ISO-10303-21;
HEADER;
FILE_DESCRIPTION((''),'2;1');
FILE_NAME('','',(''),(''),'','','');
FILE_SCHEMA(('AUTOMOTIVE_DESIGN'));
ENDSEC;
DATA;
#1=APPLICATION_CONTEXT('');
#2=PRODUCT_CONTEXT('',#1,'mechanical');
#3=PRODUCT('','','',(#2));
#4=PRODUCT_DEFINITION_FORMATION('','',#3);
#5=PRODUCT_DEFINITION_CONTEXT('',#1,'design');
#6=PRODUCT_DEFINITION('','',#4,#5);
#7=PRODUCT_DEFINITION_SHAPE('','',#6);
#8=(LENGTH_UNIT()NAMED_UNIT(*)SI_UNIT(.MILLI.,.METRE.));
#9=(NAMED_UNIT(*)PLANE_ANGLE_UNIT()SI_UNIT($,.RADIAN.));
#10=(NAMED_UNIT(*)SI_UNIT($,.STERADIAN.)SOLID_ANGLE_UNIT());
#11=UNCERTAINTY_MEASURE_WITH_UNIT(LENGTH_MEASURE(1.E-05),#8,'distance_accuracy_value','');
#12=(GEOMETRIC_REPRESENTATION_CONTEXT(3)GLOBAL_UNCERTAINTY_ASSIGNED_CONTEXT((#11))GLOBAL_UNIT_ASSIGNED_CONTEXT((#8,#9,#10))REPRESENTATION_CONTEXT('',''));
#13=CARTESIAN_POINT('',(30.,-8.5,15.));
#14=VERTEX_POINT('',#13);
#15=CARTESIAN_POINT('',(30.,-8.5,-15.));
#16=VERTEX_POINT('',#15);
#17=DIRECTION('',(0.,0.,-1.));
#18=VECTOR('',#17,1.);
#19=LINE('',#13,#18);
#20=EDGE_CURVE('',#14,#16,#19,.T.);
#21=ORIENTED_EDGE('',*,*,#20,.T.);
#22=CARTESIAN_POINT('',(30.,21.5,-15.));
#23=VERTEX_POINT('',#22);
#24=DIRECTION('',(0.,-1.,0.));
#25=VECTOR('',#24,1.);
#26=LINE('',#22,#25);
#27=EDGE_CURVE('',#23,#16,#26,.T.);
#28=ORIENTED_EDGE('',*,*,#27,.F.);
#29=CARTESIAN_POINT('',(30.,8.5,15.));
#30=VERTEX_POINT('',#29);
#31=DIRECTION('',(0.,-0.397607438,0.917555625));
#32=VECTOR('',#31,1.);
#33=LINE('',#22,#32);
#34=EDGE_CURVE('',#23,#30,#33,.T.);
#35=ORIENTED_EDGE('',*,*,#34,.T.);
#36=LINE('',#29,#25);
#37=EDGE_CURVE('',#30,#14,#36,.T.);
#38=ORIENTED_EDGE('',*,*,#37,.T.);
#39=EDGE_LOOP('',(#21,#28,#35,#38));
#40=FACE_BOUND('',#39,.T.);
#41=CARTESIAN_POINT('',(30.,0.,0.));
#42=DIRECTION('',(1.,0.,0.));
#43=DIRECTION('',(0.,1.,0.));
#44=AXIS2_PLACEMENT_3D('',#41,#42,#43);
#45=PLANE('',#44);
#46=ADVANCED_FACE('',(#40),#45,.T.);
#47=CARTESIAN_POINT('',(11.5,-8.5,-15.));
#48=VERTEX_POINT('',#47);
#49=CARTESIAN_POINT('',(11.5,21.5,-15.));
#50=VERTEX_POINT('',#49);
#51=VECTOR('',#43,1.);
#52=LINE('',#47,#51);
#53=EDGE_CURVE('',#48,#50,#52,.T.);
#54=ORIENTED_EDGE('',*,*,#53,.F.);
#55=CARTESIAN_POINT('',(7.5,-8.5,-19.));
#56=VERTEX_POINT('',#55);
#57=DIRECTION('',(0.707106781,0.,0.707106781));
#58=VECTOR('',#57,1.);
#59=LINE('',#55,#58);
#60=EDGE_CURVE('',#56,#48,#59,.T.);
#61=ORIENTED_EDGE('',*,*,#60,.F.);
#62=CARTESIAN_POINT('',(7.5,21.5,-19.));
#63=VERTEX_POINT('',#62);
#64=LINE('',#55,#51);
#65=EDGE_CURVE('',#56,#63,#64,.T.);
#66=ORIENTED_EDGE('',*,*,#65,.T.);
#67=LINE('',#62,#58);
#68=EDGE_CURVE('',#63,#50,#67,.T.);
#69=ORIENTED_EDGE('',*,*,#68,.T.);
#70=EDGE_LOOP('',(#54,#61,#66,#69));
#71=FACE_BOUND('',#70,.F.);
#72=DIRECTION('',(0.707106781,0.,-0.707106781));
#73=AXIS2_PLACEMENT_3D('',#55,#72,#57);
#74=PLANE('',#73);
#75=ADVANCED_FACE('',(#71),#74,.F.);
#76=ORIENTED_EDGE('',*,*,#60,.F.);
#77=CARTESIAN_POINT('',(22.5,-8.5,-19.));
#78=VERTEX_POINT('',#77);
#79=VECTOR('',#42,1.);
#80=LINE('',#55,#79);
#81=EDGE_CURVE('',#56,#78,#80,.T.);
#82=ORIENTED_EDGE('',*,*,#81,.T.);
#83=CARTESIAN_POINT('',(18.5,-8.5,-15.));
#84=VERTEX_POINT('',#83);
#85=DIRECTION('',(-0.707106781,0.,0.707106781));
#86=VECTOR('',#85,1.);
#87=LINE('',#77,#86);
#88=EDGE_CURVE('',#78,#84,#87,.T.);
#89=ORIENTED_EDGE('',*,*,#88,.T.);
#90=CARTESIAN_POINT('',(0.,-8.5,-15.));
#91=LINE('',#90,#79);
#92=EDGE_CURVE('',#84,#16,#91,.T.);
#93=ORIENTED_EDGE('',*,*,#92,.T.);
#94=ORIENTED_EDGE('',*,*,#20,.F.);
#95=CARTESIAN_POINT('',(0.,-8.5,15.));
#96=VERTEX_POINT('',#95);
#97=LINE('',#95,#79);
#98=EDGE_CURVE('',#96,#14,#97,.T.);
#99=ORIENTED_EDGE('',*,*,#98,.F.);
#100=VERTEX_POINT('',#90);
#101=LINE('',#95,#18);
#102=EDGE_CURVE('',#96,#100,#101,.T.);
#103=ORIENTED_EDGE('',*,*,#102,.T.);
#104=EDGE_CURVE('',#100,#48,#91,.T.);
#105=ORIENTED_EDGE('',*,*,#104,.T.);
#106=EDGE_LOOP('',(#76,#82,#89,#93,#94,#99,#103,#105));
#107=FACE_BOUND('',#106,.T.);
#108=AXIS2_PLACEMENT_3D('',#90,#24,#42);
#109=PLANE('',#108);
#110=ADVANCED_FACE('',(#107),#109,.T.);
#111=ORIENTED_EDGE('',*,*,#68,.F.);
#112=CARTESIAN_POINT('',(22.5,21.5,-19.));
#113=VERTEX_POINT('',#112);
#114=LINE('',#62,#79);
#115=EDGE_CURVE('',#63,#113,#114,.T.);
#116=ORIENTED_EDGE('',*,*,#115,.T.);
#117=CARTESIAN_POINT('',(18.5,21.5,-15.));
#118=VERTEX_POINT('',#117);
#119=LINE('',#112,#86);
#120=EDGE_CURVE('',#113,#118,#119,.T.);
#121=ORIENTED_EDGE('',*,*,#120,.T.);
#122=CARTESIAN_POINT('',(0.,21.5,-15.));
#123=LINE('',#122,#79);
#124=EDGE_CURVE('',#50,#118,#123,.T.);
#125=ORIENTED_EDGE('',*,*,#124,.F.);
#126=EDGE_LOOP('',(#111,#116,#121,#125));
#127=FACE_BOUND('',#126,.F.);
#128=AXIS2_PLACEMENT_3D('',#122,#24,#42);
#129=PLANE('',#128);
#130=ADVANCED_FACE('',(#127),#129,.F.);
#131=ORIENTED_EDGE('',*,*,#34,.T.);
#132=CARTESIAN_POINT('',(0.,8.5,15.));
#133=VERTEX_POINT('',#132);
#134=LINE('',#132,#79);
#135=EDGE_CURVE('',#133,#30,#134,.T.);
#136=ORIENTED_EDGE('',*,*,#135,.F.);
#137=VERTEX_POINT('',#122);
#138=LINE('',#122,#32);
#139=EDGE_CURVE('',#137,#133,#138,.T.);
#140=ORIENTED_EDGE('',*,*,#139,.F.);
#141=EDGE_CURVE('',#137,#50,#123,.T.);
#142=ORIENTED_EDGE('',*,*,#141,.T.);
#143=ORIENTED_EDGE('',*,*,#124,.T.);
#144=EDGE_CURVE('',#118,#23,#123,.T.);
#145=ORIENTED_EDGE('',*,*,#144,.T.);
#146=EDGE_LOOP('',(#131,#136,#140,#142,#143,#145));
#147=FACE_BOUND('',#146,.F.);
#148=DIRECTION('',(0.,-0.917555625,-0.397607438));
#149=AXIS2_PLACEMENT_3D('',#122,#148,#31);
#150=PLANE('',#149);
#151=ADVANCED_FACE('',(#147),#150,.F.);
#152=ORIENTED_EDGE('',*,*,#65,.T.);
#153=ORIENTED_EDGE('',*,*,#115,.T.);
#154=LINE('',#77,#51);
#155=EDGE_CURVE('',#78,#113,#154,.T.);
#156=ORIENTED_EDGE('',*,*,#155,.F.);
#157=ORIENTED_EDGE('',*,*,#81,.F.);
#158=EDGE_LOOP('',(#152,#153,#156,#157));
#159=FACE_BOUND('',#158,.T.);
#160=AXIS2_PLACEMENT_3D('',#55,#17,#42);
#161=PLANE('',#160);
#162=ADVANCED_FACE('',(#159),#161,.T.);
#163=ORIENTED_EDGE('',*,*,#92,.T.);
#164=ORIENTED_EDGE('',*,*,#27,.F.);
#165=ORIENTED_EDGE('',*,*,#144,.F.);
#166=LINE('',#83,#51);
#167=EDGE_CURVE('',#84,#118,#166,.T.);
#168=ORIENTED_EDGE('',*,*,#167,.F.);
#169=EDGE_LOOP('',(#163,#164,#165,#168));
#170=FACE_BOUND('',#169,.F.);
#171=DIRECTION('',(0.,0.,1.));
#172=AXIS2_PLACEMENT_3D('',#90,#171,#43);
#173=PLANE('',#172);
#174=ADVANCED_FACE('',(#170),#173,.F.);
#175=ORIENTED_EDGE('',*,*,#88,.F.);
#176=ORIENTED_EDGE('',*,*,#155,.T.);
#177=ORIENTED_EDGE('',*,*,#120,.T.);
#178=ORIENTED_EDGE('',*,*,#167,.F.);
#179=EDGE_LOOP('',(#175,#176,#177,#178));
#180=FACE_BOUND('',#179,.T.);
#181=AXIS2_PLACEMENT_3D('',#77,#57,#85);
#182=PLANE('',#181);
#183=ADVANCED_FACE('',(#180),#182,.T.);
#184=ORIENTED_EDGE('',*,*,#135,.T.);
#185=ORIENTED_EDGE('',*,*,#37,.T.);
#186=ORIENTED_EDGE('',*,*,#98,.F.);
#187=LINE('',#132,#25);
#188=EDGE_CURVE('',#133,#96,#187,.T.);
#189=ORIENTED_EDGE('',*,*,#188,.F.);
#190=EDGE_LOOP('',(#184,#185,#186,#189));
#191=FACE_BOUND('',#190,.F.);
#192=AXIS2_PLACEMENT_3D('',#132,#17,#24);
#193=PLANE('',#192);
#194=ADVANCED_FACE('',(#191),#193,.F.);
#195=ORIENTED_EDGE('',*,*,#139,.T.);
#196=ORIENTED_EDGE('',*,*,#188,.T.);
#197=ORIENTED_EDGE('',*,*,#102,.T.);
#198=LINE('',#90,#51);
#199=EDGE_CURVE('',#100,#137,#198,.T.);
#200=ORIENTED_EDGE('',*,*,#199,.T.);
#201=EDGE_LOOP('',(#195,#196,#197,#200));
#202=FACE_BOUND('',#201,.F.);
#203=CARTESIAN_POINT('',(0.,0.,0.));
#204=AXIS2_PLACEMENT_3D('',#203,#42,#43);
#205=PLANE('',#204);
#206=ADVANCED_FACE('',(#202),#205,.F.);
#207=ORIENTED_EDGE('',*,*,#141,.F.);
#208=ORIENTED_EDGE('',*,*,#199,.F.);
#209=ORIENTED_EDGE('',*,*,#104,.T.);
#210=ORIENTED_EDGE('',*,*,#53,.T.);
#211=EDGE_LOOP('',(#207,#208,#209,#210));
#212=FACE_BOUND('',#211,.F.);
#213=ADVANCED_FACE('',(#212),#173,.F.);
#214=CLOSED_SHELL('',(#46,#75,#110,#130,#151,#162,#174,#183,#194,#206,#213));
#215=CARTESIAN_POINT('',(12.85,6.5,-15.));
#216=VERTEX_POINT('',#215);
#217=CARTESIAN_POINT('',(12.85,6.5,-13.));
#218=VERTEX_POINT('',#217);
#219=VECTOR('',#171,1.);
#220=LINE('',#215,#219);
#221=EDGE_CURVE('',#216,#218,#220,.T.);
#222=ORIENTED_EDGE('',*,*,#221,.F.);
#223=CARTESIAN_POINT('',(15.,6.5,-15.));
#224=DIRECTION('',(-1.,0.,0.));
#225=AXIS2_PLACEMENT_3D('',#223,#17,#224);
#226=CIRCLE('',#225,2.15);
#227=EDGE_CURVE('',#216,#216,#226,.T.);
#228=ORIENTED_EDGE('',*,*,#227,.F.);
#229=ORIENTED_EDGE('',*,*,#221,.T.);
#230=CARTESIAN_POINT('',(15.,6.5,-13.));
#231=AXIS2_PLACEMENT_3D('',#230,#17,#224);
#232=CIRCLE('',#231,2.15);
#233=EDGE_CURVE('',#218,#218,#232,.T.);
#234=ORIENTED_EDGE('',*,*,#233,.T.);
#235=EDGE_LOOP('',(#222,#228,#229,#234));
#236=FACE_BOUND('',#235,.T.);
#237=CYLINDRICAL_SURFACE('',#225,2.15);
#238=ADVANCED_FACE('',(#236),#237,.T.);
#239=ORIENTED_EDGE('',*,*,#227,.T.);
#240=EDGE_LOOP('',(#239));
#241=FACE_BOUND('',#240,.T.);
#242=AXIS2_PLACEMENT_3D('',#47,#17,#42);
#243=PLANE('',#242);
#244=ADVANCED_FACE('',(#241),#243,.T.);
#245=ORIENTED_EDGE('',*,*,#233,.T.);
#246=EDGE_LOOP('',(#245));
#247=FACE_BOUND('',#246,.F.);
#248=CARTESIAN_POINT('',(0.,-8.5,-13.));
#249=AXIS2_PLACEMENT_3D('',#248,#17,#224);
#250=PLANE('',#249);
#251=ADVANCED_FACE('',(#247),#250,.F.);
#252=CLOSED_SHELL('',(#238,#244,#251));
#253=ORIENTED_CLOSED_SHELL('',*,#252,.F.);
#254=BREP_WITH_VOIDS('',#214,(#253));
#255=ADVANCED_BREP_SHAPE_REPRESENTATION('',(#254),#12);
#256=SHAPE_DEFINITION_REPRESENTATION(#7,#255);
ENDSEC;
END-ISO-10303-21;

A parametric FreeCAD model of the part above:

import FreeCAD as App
import Part
import Sketcher
from FreeCAD import Vector
Q = App.Units.Quantity


def add_polygon(sketch, points):
    """Adds a closed chain of lines whose ends are joined by coincident constraints."""
    first, n = sketch.GeometryCount, len(points)
    for a, b in zip(points, points[1:] + points[:1]):
        sketch.addGeometry(Part.LineSegment(App.Vector(*a, 0), App.Vector(*b, 0)), False)
    for i in range(n):
        sketch.addConstraint(Sketcher.Constraint("Coincident", first + i, 2, first + (i + 1) % n, 1))

doc = App.newDocument("Part")
body = doc.addObject("PartDesign::Body", "Body")

# Sketch on YZ plane
sketch1 = body.newObject("Sketcher::SketchObject", "Sketch")
sketch1.AttachmentSupport = (doc.getObject("YZ_Plane"), [""])
sketch1.MapMode = "FlatFace"
add_polygon(sketch1, [(-8, 15), (-8, -15), (22, -15), (8, 15)])  # lines 0-3
sketch1.addConstraint([
    Sketcher.Constraint("Vertical", 0),
    Sketcher.Constraint("Horizontal", 1),
    Sketcher.Constraint("Horizontal", 3),
    Sketcher.Constraint("Symmetric", 0, 2, 2, 2, -1, 1),
    Sketcher.Constraint("Equal", 1, 0),
    Sketcher.Constraint("DistanceX", 1, 1, 1, 2, Q("30 mm")),
    Sketcher.Constraint("DistanceX", 3, 2, 3, 1, Q("17 mm")),
])
pad1 = body.newObject("PartDesign::Pad", "Pad")
pad1.Profile = sketch1
pad1.Length = 30

# Sketch on XY plane
sketch2 = body.newObject("Sketcher::SketchObject", "Sketch001")
sketch2.AttachmentSupport = (doc.getObject("XY_Plane"), [""])
sketch2.MapMode = "FlatFace"
sketch2.AttachmentOffset = App.Placement(Vector(0, 0, -15), App.Rotation())
sketch2.addGeometry(Part.Circle(Vector(15, 6.5, 0), Vector(0, 0, 1), 2.1), False)
sketch2.addConstraint([
    Sketcher.Constraint("Diameter", 0, Q("4.3 mm")),
    Sketcher.Constraint("DistanceX", -1, 1, 0, 3, Q("15 mm")),
    Sketcher.Constraint("DistanceY", -1, 1, 0, 3, Q("6.5 mm")),
])
pocket1 = body.newObject("PartDesign::Pocket", "Pocket")
pocket1.Profile = sketch2
pocket1.Length = 2
pocket1.Reversed = True

# Sketch on XZ plane
sketch3 = body.newObject("Sketcher::SketchObject", "Sketch002")
sketch3.AttachmentSupport = (doc.getObject("XZ_Plane"), [""])
sketch3.MapMode = "FlatFace"
sketch3.AttachmentOffset = App.Placement(Vector(0, 0, 8.5), App.Rotation())
add_polygon(sketch3, [(18, -15), (12, -15), (8, -19), (22, -19)])  # lines 0-3
sketch3.addConstraint([
    Sketcher.Constraint("Horizontal", 0),
    Sketcher.Constraint("Horizontal", 2),
    Sketcher.Constraint("Perpendicular", 1, 3),
    Sketcher.Constraint("Equal", 1, 3),
    Sketcher.Constraint("DistanceX", 2, 1, 2, 2, Q("15 mm")),
    Sketcher.Constraint("DistanceY", 0, 2, -1, 1, Q("15 mm")),
    Sketcher.Constraint("DistanceX", 1, 2, 0, 2, Q("4 mm")),
    Sketcher.Constraint("DistanceX", -1, 1, 1, 2, Q("7.5 mm")),
])
pad2 = body.newObject("PartDesign::Pad", "Pad001")
pad2.Profile = sketch3
pad2.Length = 30
pad2.Reversed = True

doc.recompute()
